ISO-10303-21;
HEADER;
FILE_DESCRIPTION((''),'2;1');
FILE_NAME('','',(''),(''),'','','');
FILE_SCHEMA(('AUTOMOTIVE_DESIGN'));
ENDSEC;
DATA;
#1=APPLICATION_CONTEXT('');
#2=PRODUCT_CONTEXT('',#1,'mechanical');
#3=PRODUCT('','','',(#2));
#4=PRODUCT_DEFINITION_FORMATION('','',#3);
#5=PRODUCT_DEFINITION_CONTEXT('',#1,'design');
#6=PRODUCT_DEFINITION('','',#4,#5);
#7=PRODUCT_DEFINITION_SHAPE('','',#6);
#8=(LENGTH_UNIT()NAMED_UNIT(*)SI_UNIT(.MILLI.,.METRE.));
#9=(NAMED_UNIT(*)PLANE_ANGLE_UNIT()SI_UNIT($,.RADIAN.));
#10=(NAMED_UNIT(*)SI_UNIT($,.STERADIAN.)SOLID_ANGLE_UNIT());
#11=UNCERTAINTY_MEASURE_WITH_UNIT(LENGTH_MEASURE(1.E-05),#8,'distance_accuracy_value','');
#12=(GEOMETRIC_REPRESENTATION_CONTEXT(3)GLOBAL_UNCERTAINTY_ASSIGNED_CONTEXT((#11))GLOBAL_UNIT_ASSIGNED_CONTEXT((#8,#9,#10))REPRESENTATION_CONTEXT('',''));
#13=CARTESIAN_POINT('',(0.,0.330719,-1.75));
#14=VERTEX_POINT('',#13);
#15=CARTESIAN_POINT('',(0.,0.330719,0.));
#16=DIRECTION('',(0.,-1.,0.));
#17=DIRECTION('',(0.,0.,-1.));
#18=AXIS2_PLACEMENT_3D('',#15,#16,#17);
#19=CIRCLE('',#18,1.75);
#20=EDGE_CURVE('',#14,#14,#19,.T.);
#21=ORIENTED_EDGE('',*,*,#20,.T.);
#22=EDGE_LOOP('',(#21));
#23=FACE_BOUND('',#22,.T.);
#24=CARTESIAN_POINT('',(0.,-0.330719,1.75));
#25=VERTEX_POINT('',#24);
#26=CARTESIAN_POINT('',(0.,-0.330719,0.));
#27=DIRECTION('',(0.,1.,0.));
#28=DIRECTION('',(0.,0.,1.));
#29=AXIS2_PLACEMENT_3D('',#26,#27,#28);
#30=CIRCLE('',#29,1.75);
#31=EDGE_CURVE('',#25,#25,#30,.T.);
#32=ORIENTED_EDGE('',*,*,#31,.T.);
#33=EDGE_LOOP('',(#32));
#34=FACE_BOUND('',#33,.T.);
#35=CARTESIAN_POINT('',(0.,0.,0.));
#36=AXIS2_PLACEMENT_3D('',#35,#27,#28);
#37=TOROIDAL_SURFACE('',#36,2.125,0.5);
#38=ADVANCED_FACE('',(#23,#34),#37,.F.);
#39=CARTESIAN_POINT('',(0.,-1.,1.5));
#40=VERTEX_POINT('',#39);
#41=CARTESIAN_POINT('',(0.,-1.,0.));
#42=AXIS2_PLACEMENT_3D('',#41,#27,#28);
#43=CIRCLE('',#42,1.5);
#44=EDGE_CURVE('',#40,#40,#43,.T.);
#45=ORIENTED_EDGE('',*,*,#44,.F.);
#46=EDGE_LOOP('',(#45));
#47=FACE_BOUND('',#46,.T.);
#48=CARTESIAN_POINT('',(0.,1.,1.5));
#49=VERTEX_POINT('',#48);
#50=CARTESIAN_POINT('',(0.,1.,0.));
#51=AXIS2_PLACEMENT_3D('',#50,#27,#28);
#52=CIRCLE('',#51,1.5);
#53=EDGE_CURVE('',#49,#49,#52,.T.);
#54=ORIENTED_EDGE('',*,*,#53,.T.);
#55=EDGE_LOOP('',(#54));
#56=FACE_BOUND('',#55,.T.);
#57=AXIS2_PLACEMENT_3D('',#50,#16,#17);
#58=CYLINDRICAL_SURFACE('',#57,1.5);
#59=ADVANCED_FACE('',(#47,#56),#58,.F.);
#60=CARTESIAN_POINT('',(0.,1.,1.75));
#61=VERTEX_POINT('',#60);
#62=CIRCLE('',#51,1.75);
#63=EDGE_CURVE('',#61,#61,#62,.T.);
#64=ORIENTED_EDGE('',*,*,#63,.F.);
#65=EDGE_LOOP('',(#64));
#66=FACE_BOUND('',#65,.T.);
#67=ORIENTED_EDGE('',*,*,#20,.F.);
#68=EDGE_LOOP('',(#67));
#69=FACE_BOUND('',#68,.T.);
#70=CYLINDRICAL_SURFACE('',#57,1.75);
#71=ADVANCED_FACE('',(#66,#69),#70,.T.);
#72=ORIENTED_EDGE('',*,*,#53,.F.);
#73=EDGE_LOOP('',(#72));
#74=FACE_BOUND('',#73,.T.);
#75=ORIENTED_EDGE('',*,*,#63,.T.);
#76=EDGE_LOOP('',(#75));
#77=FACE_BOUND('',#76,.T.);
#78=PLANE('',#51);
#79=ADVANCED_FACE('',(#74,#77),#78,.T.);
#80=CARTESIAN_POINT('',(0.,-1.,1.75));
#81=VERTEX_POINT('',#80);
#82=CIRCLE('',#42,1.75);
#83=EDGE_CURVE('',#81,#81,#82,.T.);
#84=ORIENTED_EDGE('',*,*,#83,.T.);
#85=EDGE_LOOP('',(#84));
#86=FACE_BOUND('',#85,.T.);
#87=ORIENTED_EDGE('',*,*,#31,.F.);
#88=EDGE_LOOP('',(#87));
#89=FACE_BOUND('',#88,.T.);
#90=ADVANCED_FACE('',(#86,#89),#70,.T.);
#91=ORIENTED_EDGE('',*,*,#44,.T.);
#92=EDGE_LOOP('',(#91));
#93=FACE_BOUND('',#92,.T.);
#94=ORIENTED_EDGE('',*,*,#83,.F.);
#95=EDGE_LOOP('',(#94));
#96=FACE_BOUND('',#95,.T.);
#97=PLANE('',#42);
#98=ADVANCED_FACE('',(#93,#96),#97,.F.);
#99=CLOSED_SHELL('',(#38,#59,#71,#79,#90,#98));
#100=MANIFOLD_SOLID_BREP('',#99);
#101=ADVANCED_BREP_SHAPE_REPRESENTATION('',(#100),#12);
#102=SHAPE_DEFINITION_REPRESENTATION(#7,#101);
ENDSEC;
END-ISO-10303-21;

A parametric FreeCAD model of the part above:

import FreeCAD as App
import Part
import Sketcher
from FreeCAD import Vector

doc = App.newDocument("Part")
body = doc.addObject("PartDesign::Body", "Body")

sketch1 = body.newObject("Sketcher::SketchObject", "Sketch")
sketch1.AttachmentSupport = (doc.getObject("XZ_Plane"), [""])
sketch1.MapMode = "FlatFace"
sketch1.addGeometry([
    Part.Circle(Vector(0, 0, 0), Vector(0, 0, 1), 1.8),
    Part.Circle(Vector(0, 0, 0), Vector(0, 0, 1), 1.5),
], False)
sketch1.addConstraint([
    Sketcher.Constraint("Coincident", 0, 3, -1, 1),
    Sketcher.Constraint("Coincident", 1, 3, -1, 1),
    Sketcher.Constraint("Diameter", 1, 3.0),
    Sketcher.Constraint("Diameter", 0, 3.5),
])
pad1 = body.newObject("PartDesign::Pad", "Pad")
pad1.Profile = sketch1
pad1.Length = 2
pad1.Midplane = True

sketch2 = body.newObject("Sketcher::SketchObject", "Sketch001")
sketch2.AttachmentSupport = (doc.getObject("XY_Plane"), [""])
sketch2.MapMode = "FlatFace"
sketch2.addGeometry(Part.Circle(Vector(2.1, 0, 0), Vector(0, 0, 1), 0.5), False)
sketch2.addConstraint([
    Sketcher.Constraint("PointOnObject", 0, 3, -1),
    Sketcher.Constraint("Diameter", 0, 1.0),
    Sketcher.Constraint("DistanceX", -1, 1, 0, 3, 2.125),
])
groove = body.newObject("PartDesign::Groove", "Groove")
groove.Profile = sketch2
groove.ReferenceAxis = (sketch2, ["V_Axis"])
groove.Angle = 360

doc.recompute()
